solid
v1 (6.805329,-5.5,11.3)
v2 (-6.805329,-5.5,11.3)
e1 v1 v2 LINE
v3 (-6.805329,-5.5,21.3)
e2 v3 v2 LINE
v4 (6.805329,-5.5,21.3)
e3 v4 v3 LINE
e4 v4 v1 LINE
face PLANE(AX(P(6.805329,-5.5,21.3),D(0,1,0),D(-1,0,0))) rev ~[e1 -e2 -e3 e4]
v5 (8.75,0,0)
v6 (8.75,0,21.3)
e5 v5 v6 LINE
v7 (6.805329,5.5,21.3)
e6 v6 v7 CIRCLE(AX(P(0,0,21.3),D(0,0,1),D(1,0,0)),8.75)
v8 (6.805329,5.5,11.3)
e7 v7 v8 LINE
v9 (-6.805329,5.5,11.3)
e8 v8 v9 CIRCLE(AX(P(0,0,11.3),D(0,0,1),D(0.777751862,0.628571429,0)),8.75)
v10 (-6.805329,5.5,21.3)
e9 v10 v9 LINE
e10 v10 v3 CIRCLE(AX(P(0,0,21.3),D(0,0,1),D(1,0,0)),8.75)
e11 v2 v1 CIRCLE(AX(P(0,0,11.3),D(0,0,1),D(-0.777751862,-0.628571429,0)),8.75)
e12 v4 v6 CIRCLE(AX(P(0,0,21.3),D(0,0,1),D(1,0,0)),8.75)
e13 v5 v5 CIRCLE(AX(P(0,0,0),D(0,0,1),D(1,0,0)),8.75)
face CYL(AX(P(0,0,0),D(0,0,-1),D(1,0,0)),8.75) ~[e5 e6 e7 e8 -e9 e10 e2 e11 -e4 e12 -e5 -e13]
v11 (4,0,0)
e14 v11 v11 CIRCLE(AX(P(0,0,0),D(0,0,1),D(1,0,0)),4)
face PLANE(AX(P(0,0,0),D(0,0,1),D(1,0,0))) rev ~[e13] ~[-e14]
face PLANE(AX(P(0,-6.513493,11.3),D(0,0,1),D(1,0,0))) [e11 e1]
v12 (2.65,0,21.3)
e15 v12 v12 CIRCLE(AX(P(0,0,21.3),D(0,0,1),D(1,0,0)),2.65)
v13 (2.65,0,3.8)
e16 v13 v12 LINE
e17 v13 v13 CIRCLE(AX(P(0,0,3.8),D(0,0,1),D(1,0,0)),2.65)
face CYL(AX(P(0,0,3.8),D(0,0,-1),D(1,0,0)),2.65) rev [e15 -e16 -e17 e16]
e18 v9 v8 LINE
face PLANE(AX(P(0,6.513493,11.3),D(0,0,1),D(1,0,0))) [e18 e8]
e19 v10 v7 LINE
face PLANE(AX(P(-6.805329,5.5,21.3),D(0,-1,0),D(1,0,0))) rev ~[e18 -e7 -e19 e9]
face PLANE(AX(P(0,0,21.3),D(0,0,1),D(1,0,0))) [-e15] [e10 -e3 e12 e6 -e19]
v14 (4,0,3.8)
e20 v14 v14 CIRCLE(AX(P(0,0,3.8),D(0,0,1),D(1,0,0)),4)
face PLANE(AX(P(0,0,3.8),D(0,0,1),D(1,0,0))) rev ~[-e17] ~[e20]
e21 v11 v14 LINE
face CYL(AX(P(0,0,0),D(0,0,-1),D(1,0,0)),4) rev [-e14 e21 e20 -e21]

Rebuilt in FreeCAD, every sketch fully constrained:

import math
import FreeCAD as App
import Part
import Sketcher
Q = App.Units.Quantity

doc = App.newDocument("Part")
body = doc.addObject("PartDesign::Body", "Body")

# Sketch on XY plane
sketch1 = body.newObject("Sketcher::SketchObject", "Sketch")
sketch1.AttachmentSupport = (doc.getObject("XY_Plane"), [""])
sketch1.MapMode = "FlatFace"
sketch1.addGeometry(Part.Circle(App.Vector(0, 0, 0), App.Vector(0, 0, 1), 8.8), False)
sketch1.addGeometry(Part.Circle(App.Vector(0, 0, 0), App.Vector(0, 0, 1), 4), False)
sketch1.addConstraint(Sketcher.Constraint("Coincident", 0, 3, -1, 1))
sketch1.addConstraint(Sketcher.Constraint("Coincident", 1, 3, -1, 1))
sketch1.addConstraint(Sketcher.Constraint("Diameter", 1, Q("8 mm")))
sketch1.addConstraint(Sketcher.Constraint("Diameter", 0, Q("17.5 mm")))
pad1 = body.newObject("PartDesign::Pad", "Pad")
pad1.Profile = sketch1
pad1.Length = 21.3

# Sketch on XY plane
sketch2 = body.newObject("Sketcher::SketchObject", "Sketch001")
sketch2.AttachmentSupport = (doc.getObject("XY_Plane"), [""])
sketch2.MapMode = "FlatFace"
sketch2.AttachmentOffset = App.Placement(App.Vector(0, 0, 3.8), App.Rotation())
sketch2.addGeometry(Part.Circle(App.Vector(0, 0, 0), App.Vector(0, 0, 1), 4), False)
sketch2.addGeometry(Part.Circle(App.Vector(0, 0, 0), App.Vector(0, 0, 1), 2.6), False)
sketch2.addConstraint(Sketcher.Constraint("Coincident", 0, 3, -1, 1))
sketch2.addConstraint(Sketcher.Constraint("Coincident", 1, 3, -1, 1))
sketch2.addConstraint(Sketcher.Constraint("Diameter", 0, Q("8 mm")))
sketch2.addConstraint(Sketcher.Constraint("Diameter", 1, Q("5.3 mm")))
pad2 = body.newObject("PartDesign::Pad", "Pad001")
pad2.Profile = sketch2
pad2.Length = 17.5

# Sketch on XY plane
sketch3 = body.newObject("Sketcher::SketchObject", "Sketch002")
sketch3.AttachmentSupport = (doc.getObject("XY_Plane"), [""])
sketch3.MapMode = "FlatFace"
sketch3.AttachmentOffset = App.Placement(App.Vector(0, 0, 21.3), App.Rotation())
sketch3.addGeometry(Part.ArcOfCircle(Part.Circle(App.Vector(0, 0, 0), App.Vector(0, 0, 1), 9), math.radians(-141), math.radians(-39)), False)
sketch3.addGeometry(Part.LineSegment(App.Vector(7, -6, 0), App.Vector(-7, -6, 0)), False)
sketch3.addGeometry(Part.LineSegment(App.Vector(-7, 6, 0), App.Vector(7, 6, 0)), False)
sketch3.addGeometry(Part.ArcOfCircle(Part.Circle(App.Vector(0, 0, 0), App.Vector(0, 0, 1), 9), math.radians(39), math.radians(141)), False)
sketch3.addConstraint(Sketcher.Constraint("Coincident", 0, 1, 1, 2))
sketch3.addConstraint(Sketcher.Constraint("Coincident", 1, 1, 0, 2))
sketch3.addConstraint(Sketcher.Constraint("Coincident", 2, 1, 3, 2))
sketch3.addConstraint(Sketcher.Constraint("Coincident", 3, 1, 2, 2))
sketch3.addConstraint(Sketcher.Constraint("Horizontal", 1))
sketch3.addConstraint(Sketcher.Constraint("Horizontal", 2))
sketch3.addConstraint(Sketcher.Constraint("Coincident", 0, 3, -1, 1))
sketch3.addConstraint(Sketcher.Constraint("Coincident", 3, 3, -1, 1))
sketch3.addConstraint(Sketcher.Constraint("Equal", 0, 3))
sketch3.addConstraint(Sketcher.Constraint("Vertical", 0, 1, 2, 1))
sketch3.addConstraint(Sketcher.Constraint("Radius", 0, Q("8.75 mm")))
sketch3.addConstraint(Sketcher.Constraint("DistanceY", 0, 1, 2, 1, Q("11 mm")))
pocket1 = body.newObject("PartDesign::Pocket", "Pocket")
pocket1.Profile = sketch3
pocket1.Length = 10

doc.recompute()
